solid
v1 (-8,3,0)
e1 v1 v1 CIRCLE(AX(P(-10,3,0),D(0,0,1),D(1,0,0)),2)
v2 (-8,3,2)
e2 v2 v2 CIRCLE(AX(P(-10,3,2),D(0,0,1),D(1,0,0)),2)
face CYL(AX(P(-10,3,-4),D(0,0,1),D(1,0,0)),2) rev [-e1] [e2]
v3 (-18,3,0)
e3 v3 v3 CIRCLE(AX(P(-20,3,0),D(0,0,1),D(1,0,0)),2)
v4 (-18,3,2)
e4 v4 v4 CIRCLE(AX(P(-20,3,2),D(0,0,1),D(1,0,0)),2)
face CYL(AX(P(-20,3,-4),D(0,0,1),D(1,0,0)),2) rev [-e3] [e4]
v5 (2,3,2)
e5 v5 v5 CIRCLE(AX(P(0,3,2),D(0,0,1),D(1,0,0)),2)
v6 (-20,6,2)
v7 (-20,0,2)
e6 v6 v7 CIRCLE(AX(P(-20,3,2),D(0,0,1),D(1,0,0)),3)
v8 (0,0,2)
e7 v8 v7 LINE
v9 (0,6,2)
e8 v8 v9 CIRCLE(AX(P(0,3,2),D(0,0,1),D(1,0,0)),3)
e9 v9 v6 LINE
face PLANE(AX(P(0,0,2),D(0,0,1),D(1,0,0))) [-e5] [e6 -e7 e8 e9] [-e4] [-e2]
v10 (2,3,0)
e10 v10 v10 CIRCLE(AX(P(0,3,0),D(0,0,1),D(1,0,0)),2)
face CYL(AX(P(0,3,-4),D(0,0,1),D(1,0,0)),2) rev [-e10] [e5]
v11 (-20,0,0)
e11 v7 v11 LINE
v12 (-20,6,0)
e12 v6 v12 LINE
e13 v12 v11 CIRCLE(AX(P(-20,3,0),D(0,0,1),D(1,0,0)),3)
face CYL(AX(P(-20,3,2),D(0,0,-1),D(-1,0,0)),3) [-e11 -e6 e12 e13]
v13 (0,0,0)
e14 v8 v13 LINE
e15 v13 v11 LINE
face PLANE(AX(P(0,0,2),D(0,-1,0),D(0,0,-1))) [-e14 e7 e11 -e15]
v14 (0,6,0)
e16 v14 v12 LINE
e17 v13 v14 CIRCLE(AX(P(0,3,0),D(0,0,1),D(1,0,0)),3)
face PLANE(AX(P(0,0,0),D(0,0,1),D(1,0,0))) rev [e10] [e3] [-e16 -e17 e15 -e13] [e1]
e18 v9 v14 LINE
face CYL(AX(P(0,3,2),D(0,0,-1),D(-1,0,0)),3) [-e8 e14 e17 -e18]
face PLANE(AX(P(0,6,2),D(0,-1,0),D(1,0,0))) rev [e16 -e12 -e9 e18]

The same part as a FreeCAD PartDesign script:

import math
import FreeCAD as App
import Part
import Sketcher
Q = App.Units.Quantity

doc = App.newDocument("Part")
body = doc.addObject("PartDesign::Body", "Body")

sketch1 = body.newObject("Sketcher::SketchObject", "Sketch")
sketch1.AttachmentSupport = (doc.getObject("XY_Plane"), [""])
sketch1.MapMode = "FlatFace"
sketch1.addGeometry([
    Part.ArcOfCircle(Part.Circle(App.Vector(-20, 3, 0), App.Vector(0, 0, 1), 3), math.radians(90), math.radians(270)),
    Part.LineSegment(App.Vector(-20, 0, 0), App.Vector(0, 0, 0)),
    Part.ArcOfCircle(Part.Circle(App.Vector(0, 3, 0), App.Vector(0, 0, 1), 3), math.radians(-90), math.radians(90)),
    Part.LineSegment(App.Vector(0, 6, 0), App.Vector(-20, 6, 0)),
], False)
sketch1.addConstraint([
    Sketcher.Constraint("Tangent", 0, 2, 1, 1),
    Sketcher.Constraint("Tangent", 1, 2, 2, 1),
    Sketcher.Constraint("Tangent", 2, 2, 3, 1),
    Sketcher.Constraint("Tangent", 3, 2, 0, 1),
    Sketcher.Constraint("Horizontal", 1),
    Sketcher.Constraint("Horizontal", 3),
    Sketcher.Constraint("Coincident", 1, 2, -1, 1),
    Sketcher.Constraint("Radius", 0, Q("3 mm")),
    Sketcher.Constraint("DistanceX", 1, 1, 1, 2, Q("20 mm")),
])
pad1 = body.newObject("PartDesign::Pad", "Pad")
pad1.Profile = sketch1
pad1.Length = 2

sketch2 = body.newObject("Sketcher::SketchObject", "Sketch001")
sketch2.AttachmentSupport = (doc.getObject("XY_Plane"), [""])
sketch2.MapMode = "FlatFace"
sketch2.AttachmentOffset = App.Placement(App.Vector(0, 0, 2), App.Rotation())
sketch2.addGeometry([
    Part.ArcOfCircle(Part.Circle(App.Vector(-20, 3, 0), App.Vector(0, 0, 1), 2), math.radians(0), math.radians(90)),
    Part.ArcOfCircle(Part.Circle(App.Vector(-20, 3, 0), App.Vector(0, 0, 1), 2), math.radians(90), math.radians(270)),
    Part.ArcOfCircle(Part.Circle(App.Vector(-20, 3, 0), App.Vector(0, 0, 1), 2), math.radians(-90), math.radians(0)),
    Part.ArcOfCircle(Part.Circle(App.Vector(-10, 3, 0), App.Vector(0, 0, 1), 2), math.radians(0), math.radians(90)),
    Part.ArcOfCircle(Part.Circle(App.Vector(-10, 3, 0), App.Vector(0, 0, 1), 2), math.radians(90), math.radians(270)),
    Part.ArcOfCircle(Part.Circle(App.Vector(-10, 3, 0), App.Vector(0, 0, 1), 2), math.radians(-90), math.radians(0)),
    Part.ArcOfCircle(Part.Circle(App.Vector(0, 3, 0), App.Vector(0, 0, 1), 2), math.radians(0), math.radians(90)),
    Part.ArcOfCircle(Part.Circle(App.Vector(0, 3, 0), App.Vector(0, 0, 1), 2), math.radians(90), math.radians(270)),
    Part.ArcOfCircle(Part.Circle(App.Vector(0, 3, 0), App.Vector(0, 0, 1), 2), math.radians(-90), math.radians(0)),
], False)
sketch2.addConstraint([
    Sketcher.Constraint("Tangent", 0, 2, 1, 1),
    Sketcher.Constraint("Tangent", 1, 2, 2, 1),
    Sketcher.Constraint("Tangent", 2, 2, 0, 1),
    Sketcher.Constraint("Tangent", 3, 2, 4, 1),
    Sketcher.Constraint("Tangent", 4, 2, 5, 1),
    Sketcher.Constraint("Tangent", 5, 2, 3, 1),
    Sketcher.Constraint("Tangent", 6, 2, 7, 1),
    Sketcher.Constraint("Tangent", 7, 2, 8, 1),
    Sketcher.Constraint("Tangent", 8, 2, 6, 1),
    Sketcher.Constraint("Equal", 2, 3),
    Sketcher.Constraint("Equal", 5, 6),
    Sketcher.Constraint("PointOnObject", 6, 3, -2),
    Sketcher.Constraint("PointOnObject", 6, 2, -2),
    Sketcher.Constraint("PointOnObject", 7, 2, -2),
    Sketcher.Constraint("Horizontal", 2, 3, 3, 3),
    Sketcher.Constraint("Horizontal", 5, 3, 6, 3),
    Sketcher.Constraint("Horizontal", 8, 3, 2, 2),
    Sketcher.Constraint("Horizontal", 2, 2, 5, 2),
    Sketcher.Constraint("Horizontal", 5, 2, 8, 2),
    Sketcher.Constraint("Vertical", 2, 3, 0, 2),
    Sketcher.Constraint("Vertical", 0, 2, 1, 2),
    Sketcher.Constraint("Vertical", 5, 3, 3, 2),
    Sketcher.Constraint("Vertical", 3, 2, 4, 2),
    Sketcher.Constraint("Radius", 0, Q("2 mm")),
    Sketcher.Constraint("DistanceX", 0, 3, -1, 1, Q("20 mm")),
    Sketcher.Constraint("DistanceY", -1, 1, 0, 3, Q("3 mm")),
    Sketcher.Constraint("DistanceX", 3, 3, -1, 1, Q("10 mm")),
])
pocket1 = body.newObject("PartDesign::Pocket", "Pocket")
pocket1.Profile = sketch2
pocket1.Length = 6

doc.recompute()
